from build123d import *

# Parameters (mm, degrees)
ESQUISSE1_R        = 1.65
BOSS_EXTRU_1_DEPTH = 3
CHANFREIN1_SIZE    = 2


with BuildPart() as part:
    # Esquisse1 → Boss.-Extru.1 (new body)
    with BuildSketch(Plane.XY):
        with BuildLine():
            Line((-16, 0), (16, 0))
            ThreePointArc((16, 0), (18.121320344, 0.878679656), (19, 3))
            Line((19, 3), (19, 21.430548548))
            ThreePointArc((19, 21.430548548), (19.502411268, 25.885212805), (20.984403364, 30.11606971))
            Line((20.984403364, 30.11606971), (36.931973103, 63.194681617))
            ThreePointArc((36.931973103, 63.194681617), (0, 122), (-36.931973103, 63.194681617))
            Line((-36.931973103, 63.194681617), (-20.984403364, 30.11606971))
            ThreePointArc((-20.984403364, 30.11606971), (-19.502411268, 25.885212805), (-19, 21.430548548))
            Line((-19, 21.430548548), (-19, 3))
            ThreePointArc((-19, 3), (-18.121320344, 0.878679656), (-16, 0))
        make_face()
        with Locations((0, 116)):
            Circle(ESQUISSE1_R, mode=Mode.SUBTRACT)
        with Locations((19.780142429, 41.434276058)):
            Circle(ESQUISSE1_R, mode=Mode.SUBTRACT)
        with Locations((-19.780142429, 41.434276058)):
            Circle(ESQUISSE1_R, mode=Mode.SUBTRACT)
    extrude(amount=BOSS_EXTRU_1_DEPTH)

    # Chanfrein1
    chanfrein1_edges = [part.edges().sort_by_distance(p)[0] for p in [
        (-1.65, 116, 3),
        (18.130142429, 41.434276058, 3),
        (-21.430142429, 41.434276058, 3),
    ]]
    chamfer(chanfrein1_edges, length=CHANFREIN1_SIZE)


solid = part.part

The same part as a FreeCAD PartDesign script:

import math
import FreeCAD as App
import Part
import Sketcher
from FreeCAD import Vector


def edges_at(feature, points):
    """Names of the edges that pass closest to the given points."""
    edges = feature.Shape.Edges
    near = lambda p: min(range(len(edges)), key=lambda i: edges[i].distToShape(Part.Vertex(*p))[0])
    return sorted({f"Edge{near(p) + 1}" for p in points})

doc = App.newDocument("Part")
body = doc.addObject("PartDesign::Body", "Body")

# Sketch on XY plane
sketch1 = body.newObject("Sketcher::SketchObject", "Sketch")
sketch1.AttachmentSupport = (doc.getObject("XY_Plane"), [""])
sketch1.MapMode = "FlatFace"
sketch1.addGeometry([
    Part.LineSegment(Vector(-16, 0, 0), Vector(16, 0, 0)),  # 0
    Part.ArcOfCircle(Part.Circle(Vector(16, 3, 0), Vector(0, 0, 1), 3), math.radians(-90), math.radians(0)),  # 1
    Part.LineSegment(Vector(19, 3, 0), Vector(19, 21.430549, 0)),  # 2
    Part.ArcOfCircle(Part.Circle(Vector(39, 21.430549, 0), Vector(0, 0, 1), 20), math.radians(154.260763), math.radians(180)),  # 3
    Part.LineSegment(Vector(20.984403, 30.11607, 0), Vector(36.931973, 63.194682, 0)),  # 4
    Part.ArcOfCircle(Part.Circle(Vector(0, 81, 0), Vector(0, 0, 1), 41), math.radians(-25.739237), math.radians(205.739237)),  # 5
    Part.LineSegment(Vector(-36.931973, 63.194682, 0), Vector(-20.984403, 30.11607, 0)),  # 6
    Part.ArcOfCircle(Part.Circle(Vector(-39, 21.430549, 0), Vector(0, 0, 1), 20), math.radians(0), math.radians(25.739237)),  # 7
    Part.LineSegment(Vector(-19, 21.430549, 0), Vector(-19, 3, 0)),  # 8
    Part.ArcOfCircle(Part.Circle(Vector(-16, 3, 0), Vector(0, 0, 1), 3), math.radians(180), math.radians(270)),  # 9
    Part.Circle(Vector(-19.780142, 41.434276, 0), Vector(0, 0, 1), 1.65),  # 10
    Part.Circle(Vector(19.780142, 41.434276, 0), Vector(0, 0, 1), 1.65),  # 11
    Part.Circle(Vector(0, 116, 0), Vector(0, 0, 1), 1.65),  # 12
], False)
sketch1.addConstraint([
    Sketcher.Constraint("Tangent", 0, 2, 1, 1),
    Sketcher.Constraint("Tangent", 1, 2, 2, 1),
    Sketcher.Constraint("Tangent", 2, 2, 3, 2),
    Sketcher.Constraint("Tangent", 3, 1, 4, 1),
    Sketcher.Constraint("Tangent", 4, 2, 5, 1),
    Sketcher.Constraint("Tangent", 5, 2, 6, 1),
    Sketcher.Constraint("Tangent", 6, 2, 7, 2),
    Sketcher.Constraint("Tangent", 7, 1, 8, 1),
    Sketcher.Constraint("Tangent", 8, 2, 9, 1),
    Sketcher.Constraint("Tangent", 9, 2, 0, 1),
    Sketcher.Constraint("Horizontal", 0),
    Sketcher.Constraint("Vertical", 2),
    Sketcher.Constraint("Vertical", 8),
    Sketcher.Constraint("Equal", 3, 7),
    Sketcher.Constraint("Equal", 1, 9),
    Sketcher.Constraint("Equal", 10, 11),
    Sketcher.Constraint("Equal", 11, 12),
    Sketcher.Constraint("Symmetric", 0, 2, 9, 2, -1, 1),
    Sketcher.Constraint("Symmetric", 10, 3, 11, 3, -2),
    Sketcher.Constraint("Symmetric", 4, 2, 5, 2, -2),
    Sketcher.Constraint("PointOnObject", 12, 3, -2),
    Sketcher.Constraint("Radius", 1, 3.0),
    Sketcher.Constraint("Radius", 3, 20.0),
    Sketcher.Constraint("Radius", 5, 41.0),
    Sketcher.Constraint("Diameter", 10, 3.3),
    Sketcher.Constraint("DistanceX", 0, 1, 0, 2, 32.0),
    Sketcher.Constraint("DistanceY", -1, 1, 5, 3, 81.0),
    Sketcher.Constraint("DistanceY", -1, 1, 12, 3, 116.0),
    Sketcher.Constraint("DistanceY", 2, 1, 2, 2, 18.430549),
    Sketcher.Constraint("DistanceX", 11, 3, 3, 1, 1.204261),
    Sketcher.Constraint("DistanceY", -1, 1, 10, 3, 41.434276),
])
pad1 = body.newObject("PartDesign::Pad", "Pad")
pad1.Profile = sketch1
pad1.Length = 3
doc.recompute()

chamfer = body.newObject("PartDesign::Chamfer", "Chamfer")
chamfer.Base = (pad1, edges_at(pad1, [(-1.65, 116, 3), (18.13, 41.434, 3), (-21.43, 41.434, 3)]))
chamfer.Size = 2

doc.recompute()
